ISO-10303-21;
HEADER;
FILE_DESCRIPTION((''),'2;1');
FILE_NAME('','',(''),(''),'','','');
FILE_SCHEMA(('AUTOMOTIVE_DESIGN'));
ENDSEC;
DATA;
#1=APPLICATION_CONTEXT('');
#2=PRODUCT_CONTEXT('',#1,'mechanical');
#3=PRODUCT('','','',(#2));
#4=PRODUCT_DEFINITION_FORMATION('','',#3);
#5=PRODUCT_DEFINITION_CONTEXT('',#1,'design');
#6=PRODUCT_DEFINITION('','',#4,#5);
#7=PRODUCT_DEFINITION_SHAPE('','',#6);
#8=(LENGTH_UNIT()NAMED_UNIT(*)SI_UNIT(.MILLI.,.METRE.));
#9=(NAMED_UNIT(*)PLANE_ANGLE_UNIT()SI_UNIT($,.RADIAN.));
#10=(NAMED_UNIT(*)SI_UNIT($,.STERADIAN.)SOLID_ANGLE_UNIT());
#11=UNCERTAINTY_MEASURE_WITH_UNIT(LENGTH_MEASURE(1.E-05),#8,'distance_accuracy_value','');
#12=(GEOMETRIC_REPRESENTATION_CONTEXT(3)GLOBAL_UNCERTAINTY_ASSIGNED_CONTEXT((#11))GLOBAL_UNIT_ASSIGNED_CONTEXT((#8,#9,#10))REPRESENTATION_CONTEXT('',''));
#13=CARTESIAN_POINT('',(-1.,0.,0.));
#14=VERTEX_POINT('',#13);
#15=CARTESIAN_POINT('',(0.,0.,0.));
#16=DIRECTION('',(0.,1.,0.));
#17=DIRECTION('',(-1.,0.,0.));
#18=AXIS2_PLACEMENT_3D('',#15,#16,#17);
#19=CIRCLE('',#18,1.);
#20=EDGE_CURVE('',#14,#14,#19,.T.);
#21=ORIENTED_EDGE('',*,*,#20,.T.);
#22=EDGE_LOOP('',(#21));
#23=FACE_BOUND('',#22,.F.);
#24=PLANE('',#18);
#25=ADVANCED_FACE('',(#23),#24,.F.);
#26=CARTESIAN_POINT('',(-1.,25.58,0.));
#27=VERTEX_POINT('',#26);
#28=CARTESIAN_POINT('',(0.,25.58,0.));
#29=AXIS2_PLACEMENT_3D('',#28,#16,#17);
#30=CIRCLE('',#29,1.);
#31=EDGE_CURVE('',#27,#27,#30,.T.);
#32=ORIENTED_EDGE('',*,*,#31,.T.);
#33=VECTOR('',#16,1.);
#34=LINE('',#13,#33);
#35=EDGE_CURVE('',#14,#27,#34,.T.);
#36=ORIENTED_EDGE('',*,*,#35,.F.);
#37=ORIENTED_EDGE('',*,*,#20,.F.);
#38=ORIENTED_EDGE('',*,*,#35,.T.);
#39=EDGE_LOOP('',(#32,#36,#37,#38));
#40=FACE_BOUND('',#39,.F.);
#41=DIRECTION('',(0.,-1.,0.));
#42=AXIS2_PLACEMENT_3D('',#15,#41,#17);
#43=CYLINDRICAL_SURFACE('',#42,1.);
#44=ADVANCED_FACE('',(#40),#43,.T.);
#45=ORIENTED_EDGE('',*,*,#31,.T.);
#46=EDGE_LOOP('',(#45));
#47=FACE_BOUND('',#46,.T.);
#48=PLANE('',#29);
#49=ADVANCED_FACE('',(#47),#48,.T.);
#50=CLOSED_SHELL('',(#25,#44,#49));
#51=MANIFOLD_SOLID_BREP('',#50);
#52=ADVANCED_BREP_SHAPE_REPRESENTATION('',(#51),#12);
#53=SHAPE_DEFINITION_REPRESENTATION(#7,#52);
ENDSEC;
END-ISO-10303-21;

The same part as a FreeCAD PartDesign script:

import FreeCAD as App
import Part
import Sketcher

V = App.Vector

doc = App.newDocument("Part")
body = doc.addObject("PartDesign::Body", "Body")

# Sketch on XZ plane
sketch1 = doc.addObject("Sketcher::SketchObject", "Sketch")
body.addObject(sketch1)
sketch1.AttachmentSupport = (doc.XZ_Plane, [""])
sketch1.MapMode = "FlatFace"
sketch1.addGeometry(Part.Circle(V(0, 0, 0), V(0, 0, 1), 1), False)
sketch1.addConstraint(Sketcher.Constraint("Coincident", 0, 3, -1, 1))
sketch1.addConstraint(Sketcher.Constraint("Diameter", 0, 2.0))
pad1 = doc.addObject("PartDesign::Pad", "Pad")
body.addObject(pad1)
pad1.Profile = sketch1
pad1.Length = 25.58
pad1.Reversed = True

doc.recompute()
